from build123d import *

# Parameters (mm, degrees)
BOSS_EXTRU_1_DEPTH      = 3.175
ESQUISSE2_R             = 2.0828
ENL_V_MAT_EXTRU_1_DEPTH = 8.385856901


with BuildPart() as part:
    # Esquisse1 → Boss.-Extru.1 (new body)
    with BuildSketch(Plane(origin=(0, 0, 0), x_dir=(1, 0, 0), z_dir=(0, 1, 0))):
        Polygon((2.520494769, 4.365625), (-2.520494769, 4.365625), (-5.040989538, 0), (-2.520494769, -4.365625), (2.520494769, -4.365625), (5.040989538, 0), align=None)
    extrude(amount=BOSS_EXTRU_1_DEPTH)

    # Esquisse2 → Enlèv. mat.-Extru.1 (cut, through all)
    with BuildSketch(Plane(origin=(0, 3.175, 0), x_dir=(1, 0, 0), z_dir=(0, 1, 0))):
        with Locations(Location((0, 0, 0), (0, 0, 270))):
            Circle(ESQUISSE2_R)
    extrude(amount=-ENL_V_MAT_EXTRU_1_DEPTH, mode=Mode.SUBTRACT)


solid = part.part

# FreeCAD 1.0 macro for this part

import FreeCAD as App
import Part
import Sketcher

V = App.Vector
Q = App.Units.Quantity

doc = App.newDocument("Part")
body = doc.addObject("PartDesign::Body", "Body")

# Sketch on XZ plane
sketch1 = doc.addObject("Sketcher::SketchObject", "Sketch")
body.addObject(sketch1)
sketch1.AttachmentSupport = (doc.XZ_Plane, [""])
sketch1.MapMode = "FlatFace"
sketch1.addGeometry([
    Part.LineSegment(V(3, -4, 0), V(-3, -4, 0)),  # 0
    Part.LineSegment(V(-3, -4, 0), V(-5, 0, 0)),  # 1
    Part.LineSegment(V(-5, 0, 0), V(-3, 4, 0)),  # 2
    Part.LineSegment(V(-3, 4, 0), V(3, 4, 0)),  # 3
    Part.LineSegment(V(3, 4, 0), V(5, 0, 0)),  # 4
    Part.LineSegment(V(5, 0, 0), V(3, -4, 0)),  # 5
], False)
sketch1.addConstraint([
    Sketcher.Constraint("Coincident", 0, 2, 1, 1),
    Sketcher.Constraint("Coincident", 1, 2, 2, 1),
    Sketcher.Constraint("Coincident", 2, 2, 3, 1),
    Sketcher.Constraint("Coincident", 3, 2, 4, 1),
    Sketcher.Constraint("Coincident", 4, 2, 5, 1),
    Sketcher.Constraint("Coincident", 5, 2, 0, 1),
    Sketcher.Constraint("Horizontal", 0),
    Sketcher.Constraint("Horizontal", 3),
    Sketcher.Constraint("Symmetric", 0, 2, 3, 2, -1, 1),
    Sketcher.Constraint("Symmetric", 1, 2, 4, 2, -1, 1),
    Sketcher.Constraint("PointOnObject", 1, 2, -1),
    Sketcher.Constraint("Parallel", 2, 5),
    Sketcher.Constraint("Vertical", 0, 2, 2, 2),
    Sketcher.Constraint("Angle", 1, Q("120 deg")),
    Sketcher.Constraint("DistanceY", 0, 2, -1, 1, Q("0.171875 in")),
    Sketcher.Constraint("DistanceX", 0, 2, 0, 1, Q("5.04099 mm")),
])
pad1 = doc.addObject("PartDesign::Pad", "Pad")
body.addObject(pad1)
pad1.Profile = sketch1
pad1.Length = Q("0.125 in")
pad1.Reversed = True

# Sketch on XZ plane
sketch2 = doc.addObject("Sketcher::SketchObject", "Sketch001")
body.addObject(sketch2)
sketch2.AttachmentSupport = (doc.XZ_Plane, [""])
sketch2.MapMode = "FlatFace"
sketch2.AttachmentOffset = App.Placement(V(0, 0, -0.125 * 25.4), App.Rotation())
sketch2.addGeometry(Part.Circle(V(0, 0, 0), V(0, 0, 1), 2.1), False)
sketch2.addConstraint([
    Sketcher.Constraint("Coincident", 0, 3, -1, 1),
    Sketcher.Constraint("Diameter", 0, Q("0.164 in")),
])
pocket1 = doc.addObject("PartDesign::Pocket", "Pocket")
body.addObject(pocket1)
pocket1.Profile = sketch2
pocket1.Type = "ThroughAll"
pocket1.Reversed = True

doc.recompute()
